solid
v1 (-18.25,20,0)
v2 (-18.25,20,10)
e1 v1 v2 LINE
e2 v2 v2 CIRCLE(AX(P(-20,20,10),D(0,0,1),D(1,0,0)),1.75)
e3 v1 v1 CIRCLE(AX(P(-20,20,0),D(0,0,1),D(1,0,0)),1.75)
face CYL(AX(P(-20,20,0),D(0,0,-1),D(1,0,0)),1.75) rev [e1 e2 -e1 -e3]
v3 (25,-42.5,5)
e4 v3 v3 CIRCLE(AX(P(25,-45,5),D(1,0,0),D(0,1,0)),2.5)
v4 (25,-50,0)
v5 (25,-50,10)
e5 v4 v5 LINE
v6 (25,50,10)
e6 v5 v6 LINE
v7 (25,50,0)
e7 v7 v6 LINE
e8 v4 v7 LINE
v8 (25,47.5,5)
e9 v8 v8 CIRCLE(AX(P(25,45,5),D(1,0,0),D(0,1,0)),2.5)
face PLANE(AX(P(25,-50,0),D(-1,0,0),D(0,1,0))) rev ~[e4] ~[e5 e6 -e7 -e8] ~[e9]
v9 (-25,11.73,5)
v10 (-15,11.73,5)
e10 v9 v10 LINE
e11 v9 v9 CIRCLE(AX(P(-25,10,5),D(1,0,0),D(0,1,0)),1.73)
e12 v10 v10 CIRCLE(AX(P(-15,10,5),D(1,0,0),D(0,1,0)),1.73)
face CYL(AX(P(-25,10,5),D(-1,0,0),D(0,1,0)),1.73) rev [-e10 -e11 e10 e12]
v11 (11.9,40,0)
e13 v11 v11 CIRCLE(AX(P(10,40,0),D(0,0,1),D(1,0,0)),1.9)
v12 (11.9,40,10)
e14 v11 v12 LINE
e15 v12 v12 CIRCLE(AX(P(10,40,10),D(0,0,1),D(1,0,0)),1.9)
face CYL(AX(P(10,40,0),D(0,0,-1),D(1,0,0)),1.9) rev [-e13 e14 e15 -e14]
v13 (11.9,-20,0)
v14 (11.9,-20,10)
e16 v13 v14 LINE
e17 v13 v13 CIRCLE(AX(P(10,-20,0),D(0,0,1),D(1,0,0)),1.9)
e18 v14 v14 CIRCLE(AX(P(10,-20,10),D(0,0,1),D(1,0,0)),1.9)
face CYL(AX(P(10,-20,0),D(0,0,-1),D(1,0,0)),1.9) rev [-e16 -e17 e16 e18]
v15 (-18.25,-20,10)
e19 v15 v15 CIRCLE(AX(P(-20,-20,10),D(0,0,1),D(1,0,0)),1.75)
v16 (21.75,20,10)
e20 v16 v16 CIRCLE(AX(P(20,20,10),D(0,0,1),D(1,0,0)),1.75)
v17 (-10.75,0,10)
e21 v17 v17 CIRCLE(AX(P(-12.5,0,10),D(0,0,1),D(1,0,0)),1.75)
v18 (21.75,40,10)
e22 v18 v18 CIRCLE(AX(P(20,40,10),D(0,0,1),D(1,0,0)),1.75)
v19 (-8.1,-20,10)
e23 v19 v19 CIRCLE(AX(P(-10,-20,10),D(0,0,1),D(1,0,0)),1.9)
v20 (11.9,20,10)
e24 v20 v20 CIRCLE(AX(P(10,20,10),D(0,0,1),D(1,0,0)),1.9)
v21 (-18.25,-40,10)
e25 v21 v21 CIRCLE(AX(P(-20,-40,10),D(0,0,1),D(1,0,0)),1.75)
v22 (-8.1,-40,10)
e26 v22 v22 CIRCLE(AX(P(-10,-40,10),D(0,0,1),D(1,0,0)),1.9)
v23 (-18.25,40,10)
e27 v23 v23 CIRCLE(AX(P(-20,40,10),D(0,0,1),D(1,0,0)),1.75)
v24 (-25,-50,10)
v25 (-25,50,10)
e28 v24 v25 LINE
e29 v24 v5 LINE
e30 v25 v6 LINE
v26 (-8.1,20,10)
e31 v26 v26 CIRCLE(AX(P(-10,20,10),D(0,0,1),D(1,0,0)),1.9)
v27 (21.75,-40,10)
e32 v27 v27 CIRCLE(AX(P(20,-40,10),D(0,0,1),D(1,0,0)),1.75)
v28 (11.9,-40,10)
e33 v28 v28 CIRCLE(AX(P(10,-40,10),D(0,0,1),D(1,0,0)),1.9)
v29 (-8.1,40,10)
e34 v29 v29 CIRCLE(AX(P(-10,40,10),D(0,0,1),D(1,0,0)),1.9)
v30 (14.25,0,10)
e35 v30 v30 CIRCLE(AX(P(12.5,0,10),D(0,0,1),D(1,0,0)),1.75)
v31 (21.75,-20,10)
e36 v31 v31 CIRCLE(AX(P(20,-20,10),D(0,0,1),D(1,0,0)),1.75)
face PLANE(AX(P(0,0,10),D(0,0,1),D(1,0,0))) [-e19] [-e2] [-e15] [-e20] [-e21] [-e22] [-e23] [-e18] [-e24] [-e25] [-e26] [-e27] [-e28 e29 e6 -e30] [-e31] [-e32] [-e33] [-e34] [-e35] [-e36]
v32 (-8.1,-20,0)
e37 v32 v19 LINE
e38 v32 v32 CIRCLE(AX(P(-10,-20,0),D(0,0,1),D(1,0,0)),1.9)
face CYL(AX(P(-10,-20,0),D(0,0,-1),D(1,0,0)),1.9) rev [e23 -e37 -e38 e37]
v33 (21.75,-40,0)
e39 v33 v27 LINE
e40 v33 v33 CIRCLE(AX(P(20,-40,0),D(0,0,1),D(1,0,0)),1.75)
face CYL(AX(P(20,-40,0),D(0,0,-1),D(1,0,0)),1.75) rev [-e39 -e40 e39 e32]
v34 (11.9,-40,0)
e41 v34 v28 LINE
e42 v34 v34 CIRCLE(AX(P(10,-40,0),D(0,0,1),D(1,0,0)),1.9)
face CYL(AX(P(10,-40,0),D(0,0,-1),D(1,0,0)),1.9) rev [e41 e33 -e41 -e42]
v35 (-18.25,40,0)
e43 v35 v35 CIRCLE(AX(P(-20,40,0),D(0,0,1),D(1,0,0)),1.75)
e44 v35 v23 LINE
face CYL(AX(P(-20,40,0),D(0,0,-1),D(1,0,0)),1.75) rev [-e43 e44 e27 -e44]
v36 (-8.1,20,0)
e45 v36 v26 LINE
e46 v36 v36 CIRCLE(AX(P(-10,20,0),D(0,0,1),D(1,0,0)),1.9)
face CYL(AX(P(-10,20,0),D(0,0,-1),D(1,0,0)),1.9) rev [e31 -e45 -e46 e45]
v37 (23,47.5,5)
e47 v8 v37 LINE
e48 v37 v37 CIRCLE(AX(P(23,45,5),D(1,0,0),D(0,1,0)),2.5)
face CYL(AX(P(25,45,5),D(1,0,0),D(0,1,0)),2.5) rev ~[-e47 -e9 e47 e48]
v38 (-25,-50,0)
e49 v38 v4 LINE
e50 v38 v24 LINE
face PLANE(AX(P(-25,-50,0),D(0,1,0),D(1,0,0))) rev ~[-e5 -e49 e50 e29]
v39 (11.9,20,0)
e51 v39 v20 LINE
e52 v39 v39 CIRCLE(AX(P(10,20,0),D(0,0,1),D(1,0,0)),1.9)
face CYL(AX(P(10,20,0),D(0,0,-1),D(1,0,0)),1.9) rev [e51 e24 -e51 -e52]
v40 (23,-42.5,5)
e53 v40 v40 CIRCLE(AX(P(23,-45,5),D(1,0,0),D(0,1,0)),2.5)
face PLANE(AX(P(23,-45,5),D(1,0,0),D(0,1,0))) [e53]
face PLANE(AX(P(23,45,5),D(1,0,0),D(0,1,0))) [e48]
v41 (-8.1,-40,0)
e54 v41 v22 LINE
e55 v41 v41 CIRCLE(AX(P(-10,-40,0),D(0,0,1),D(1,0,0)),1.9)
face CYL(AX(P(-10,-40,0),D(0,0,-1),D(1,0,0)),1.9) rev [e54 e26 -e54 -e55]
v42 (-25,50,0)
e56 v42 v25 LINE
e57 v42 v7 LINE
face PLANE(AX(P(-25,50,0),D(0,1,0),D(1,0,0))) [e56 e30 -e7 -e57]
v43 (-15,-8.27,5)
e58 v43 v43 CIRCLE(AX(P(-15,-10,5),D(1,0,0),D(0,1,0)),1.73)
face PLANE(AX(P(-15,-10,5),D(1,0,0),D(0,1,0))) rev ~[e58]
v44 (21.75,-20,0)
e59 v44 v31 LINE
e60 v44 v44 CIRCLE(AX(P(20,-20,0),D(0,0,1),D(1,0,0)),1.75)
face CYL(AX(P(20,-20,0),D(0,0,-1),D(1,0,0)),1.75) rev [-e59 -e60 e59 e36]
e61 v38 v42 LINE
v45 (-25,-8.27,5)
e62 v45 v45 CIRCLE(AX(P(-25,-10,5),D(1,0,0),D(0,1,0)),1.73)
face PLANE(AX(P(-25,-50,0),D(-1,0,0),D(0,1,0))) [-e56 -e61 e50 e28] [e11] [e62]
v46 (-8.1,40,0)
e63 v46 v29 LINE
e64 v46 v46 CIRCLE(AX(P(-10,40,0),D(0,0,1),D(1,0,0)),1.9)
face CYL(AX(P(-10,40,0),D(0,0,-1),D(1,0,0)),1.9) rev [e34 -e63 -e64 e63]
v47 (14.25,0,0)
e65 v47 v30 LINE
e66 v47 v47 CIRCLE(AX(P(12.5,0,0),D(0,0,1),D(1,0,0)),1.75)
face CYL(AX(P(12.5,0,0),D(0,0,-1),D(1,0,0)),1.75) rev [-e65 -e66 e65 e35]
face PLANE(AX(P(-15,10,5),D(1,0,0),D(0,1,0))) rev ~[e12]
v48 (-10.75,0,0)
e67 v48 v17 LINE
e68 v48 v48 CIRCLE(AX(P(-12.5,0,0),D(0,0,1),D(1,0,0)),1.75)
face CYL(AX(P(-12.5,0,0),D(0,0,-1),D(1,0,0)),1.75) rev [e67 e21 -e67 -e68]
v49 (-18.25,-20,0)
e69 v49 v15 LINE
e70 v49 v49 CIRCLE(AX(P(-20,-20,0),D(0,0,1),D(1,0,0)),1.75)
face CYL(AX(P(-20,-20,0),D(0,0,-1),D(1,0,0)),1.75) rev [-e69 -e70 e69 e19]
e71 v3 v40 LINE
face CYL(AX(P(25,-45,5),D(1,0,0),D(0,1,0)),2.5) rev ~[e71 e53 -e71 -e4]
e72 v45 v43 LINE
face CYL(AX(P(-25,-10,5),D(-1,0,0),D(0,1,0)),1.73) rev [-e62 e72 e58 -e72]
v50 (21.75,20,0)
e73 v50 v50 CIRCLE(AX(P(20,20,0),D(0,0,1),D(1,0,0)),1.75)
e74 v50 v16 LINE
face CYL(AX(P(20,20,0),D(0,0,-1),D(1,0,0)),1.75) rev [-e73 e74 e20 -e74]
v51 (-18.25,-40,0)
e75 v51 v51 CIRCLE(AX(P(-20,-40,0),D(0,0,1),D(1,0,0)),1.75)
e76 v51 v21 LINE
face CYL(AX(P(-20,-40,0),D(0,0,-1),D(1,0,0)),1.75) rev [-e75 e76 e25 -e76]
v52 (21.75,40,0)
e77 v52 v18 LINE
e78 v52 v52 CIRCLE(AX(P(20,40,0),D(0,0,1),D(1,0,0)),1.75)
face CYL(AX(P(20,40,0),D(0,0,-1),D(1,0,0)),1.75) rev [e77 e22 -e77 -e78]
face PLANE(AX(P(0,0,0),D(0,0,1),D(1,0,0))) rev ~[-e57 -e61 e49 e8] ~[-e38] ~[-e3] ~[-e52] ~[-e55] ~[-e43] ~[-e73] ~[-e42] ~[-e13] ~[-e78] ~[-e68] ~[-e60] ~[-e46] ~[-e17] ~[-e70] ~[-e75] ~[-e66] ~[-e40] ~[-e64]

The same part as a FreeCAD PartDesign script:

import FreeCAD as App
import Part
import Sketcher
Q = App.Units.Quantity

doc = App.newDocument("Part")
body = doc.addObject("PartDesign::Body", "Body")

sketch1 = doc.addObject("Sketcher::SketchObject", "Sketch")
body.addObject(sketch1)
sketch1.AttachmentSupport = (doc.XY_Plane, [""])
sketch1.MapMode = "FlatFace"
sketch1.addGeometry(Part.LineSegment(App.Vector(-25, 50, 0), App.Vector(-25, -50, 0)), False)
sketch1.addGeometry(Part.LineSegment(App.Vector(-25, -50, 0), App.Vector(25, -50, 0)), False)
sketch1.addGeometry(Part.LineSegment(App.Vector(25, -50, 0), App.Vector(25, 50, 0)), False)
sketch1.addGeometry(Part.LineSegment(App.Vector(25, 50, 0), App.Vector(-25, 50, 0)), False)
sketch1.addGeometry(Part.Circle(App.Vector(-20, -40, 0), App.Vector(0, 0, 1), 1.8), False)
sketch1.addGeometry(Part.Circle(App.Vector(-10, -40, 0), App.Vector(0, 0, 1), 1.9), False)
sketch1.addGeometry(Part.Circle(App.Vector(-20, -20, 0), App.Vector(0, 0, 1), 1.8), False)
sketch1.addGeometry(Part.Circle(App.Vector(-12.5, 0, 0), App.Vector(0, 0, 1), 1.8), False)
sketch1.addGeometry(Part.Circle(App.Vector(-10, -20, 0), App.Vector(0, 0, 1), 1.9), False)
sketch1.addGeometry(Part.Circle(App.Vector(10, -40, 0), App.Vector(0, 0, 1), 1.9), False)
sketch1.addGeometry(Part.Circle(App.Vector(20, -40, 0), App.Vector(0, 0, 1), 1.8), False)
sketch1.addGeometry(Part.Circle(App.Vector(10, -20, 0), App.Vector(0, 0, 1), 1.9), False)
sketch1.addGeometry(Part.Circle(App.Vector(20, -20, 0), App.Vector(0, 0, 1), 1.8), False)
sketch1.addGeometry(Part.Circle(App.Vector(12.5, 0, 0), App.Vector(0, 0, 1), 1.8), False)
sketch1.addGeometry(Part.Circle(App.Vector(-20, 20, 0), App.Vector(0, 0, 1), 1.8), False)
sketch1.addGeometry(Part.Circle(App.Vector(-10, 20, 0), App.Vector(0, 0, 1), 1.9), False)
sketch1.addGeometry(Part.Circle(App.Vector(-20, 40, 0), App.Vector(0, 0, 1), 1.8), False)
sketch1.addGeometry(Part.Circle(App.Vector(-10, 40, 0), App.Vector(0, 0, 1), 1.9), False)
sketch1.addGeometry(Part.Circle(App.Vector(10, 20, 0), App.Vector(0, 0, 1), 1.9), False)
sketch1.addGeometry(Part.Circle(App.Vector(20, 20, 0), App.Vector(0, 0, 1), 1.8), False)
sketch1.addGeometry(Part.Circle(App.Vector(10, 40, 0), App.Vector(0, 0, 1), 1.9), False)
sketch1.addGeometry(Part.Circle(App.Vector(20, 40, 0), App.Vector(0, 0, 1), 1.8), False)
sketch1.addConstraint(Sketcher.Constraint("Coincident", 0, 2, 1, 1))
sketch1.addConstraint(Sketcher.Constraint("Coincident", 1, 2, 2, 1))
sketch1.addConstraint(Sketcher.Constraint("Coincident", 2, 2, 3, 1))
sketch1.addConstraint(Sketcher.Constraint("Coincident", 3, 2, 0, 1))
sketch1.addConstraint(Sketcher.Constraint("Vertical", 0))
sketch1.addConstraint(Sketcher.Constraint("Horizontal", 1))
sketch1.addConstraint(Sketcher.Constraint("Vertical", 2))
sketch1.addConstraint(Sketcher.Constraint("Horizontal", 3))
sketch1.addConstraint(Sketcher.Constraint("Equal", 4, 6))
sketch1.addConstraint(Sketcher.Constraint("Equal", 6, 7))
sketch1.addConstraint(Sketcher.Constraint("Equal", 5, 8))
sketch1.addConstraint(Sketcher.Constraint("Equal", 8, 9))
sketch1.addConstraint(Sketcher.Constraint("Equal", 7, 10))
sketch1.addConstraint(Sketcher.Constraint("Equal", 9, 11))
sketch1.addConstraint(Sketcher.Constraint("Equal", 10, 12))
sketch1.addConstraint(Sketcher.Constraint("Equal", 12, 13))
sketch1.addConstraint(Sketcher.Constraint("Equal", 13, 14))
sketch1.addConstraint(Sketcher.Constraint("Equal", 11, 15))
sketch1.addConstraint(Sketcher.Constraint("Equal", 14, 16))
sketch1.addConstraint(Sketcher.Constraint("Equal", 15, 17))
sketch1.addConstraint(Sketcher.Constraint("Equal", 17, 18))
sketch1.addConstraint(Sketcher.Constraint("Equal", 16, 19))
sketch1.addConstraint(Sketcher.Constraint("Equal", 18, 20))
sketch1.addConstraint(Sketcher.Constraint("Equal", 19, 21))
sketch1.addConstraint(Sketcher.Constraint("Symmetric", 7, 3, 13, 3, -1, 1))
sketch1.addConstraint(Sketcher.Constraint("Symmetric", 12, 3, 14, 3, -1, 1))
sketch1.addConstraint(Sketcher.Constraint("Symmetric", 11, 3, 15, 3, -1, 1))
sketch1.addConstraint(Sketcher.Constraint("Symmetric", 10, 3, 16, 3, -1, 1))
sketch1.addConstraint(Sketcher.Constraint("Symmetric", 9, 3, 17, 3, -1, 1))
sketch1.addConstraint(Sketcher.Constraint("Symmetric", 8, 3, 18, 3, -1, 1))
sketch1.addConstraint(Sketcher.Constraint("Symmetric", 6, 3, 19, 3, -1, 1))
sketch1.addConstraint(Sketcher.Constraint("Symmetric", 5, 3, 20, 3, -1, 1))
sketch1.addConstraint(Sketcher.Constraint("Symmetric", 4, 3, 21, 3, -1, 1))
sketch1.addConstraint(Sketcher.Constraint("Symmetric", 0, 2, 2, 2, -1, 1))
sketch1.addConstraint(Sketcher.Constraint("Symmetric", 5, 3, 9, 3, -2))
sketch1.addConstraint(Sketcher.Constraint("Symmetric", 4, 3, 10, 3, -2))
sketch1.addConstraint(Sketcher.Constraint("Symmetric", 8, 3, 11, 3, -2))
sketch1.addConstraint(Sketcher.Constraint("Symmetric", 6, 3, 12, 3, -2))
sketch1.addConstraint(Sketcher.Constraint("PointOnObject", 7, 3, -1))
sketch1.addConstraint(Sketcher.Constraint("Horizontal", 4, 3, 5, 3))
sketch1.addConstraint(Sketcher.Constraint("Horizontal", 6, 3, 8, 3))
sketch1.addConstraint(Sketcher.Constraint("Vertical", 4, 3, 6, 3))
sketch1.addConstraint(Sketcher.Constraint("Vertical", 5, 3, 8, 3))
sketch1.addConstraint(Sketcher.Constraint("Diameter", 4, Q("3.5 mm")))
sketch1.addConstraint(Sketcher.Constraint("Diameter", 5, Q("3.8 mm")))
sketch1.addConstraint(Sketcher.Constraint("DistanceX", 1, 1, 1, 2, Q("50 mm")))
sketch1.addConstraint(Sketcher.Constraint("DistanceY", 0, 2, 0, 1, Q("100 mm")))
sketch1.addConstraint(Sketcher.Constraint("DistanceX", 4, 3, -1, 1, Q("20 mm")))
sketch1.addConstraint(Sketcher.Constraint("DistanceY", 4, 3, -1, 1, Q("40 mm")))
sketch1.addConstraint(Sketcher.Constraint("DistanceX", 5, 3, -1, 1, Q("10 mm")))
sketch1.addConstraint(Sketcher.Constraint("DistanceY", 6, 3, -1, 1, Q("20 mm")))
sketch1.addConstraint(Sketcher.Constraint("DistanceX", 7, 3, 13, 3, Q("25 mm")))
pad1 = doc.addObject("PartDesign::Pad", "Pad")
body.addObject(pad1)
pad1.Profile = sketch1
pad1.Length = 10

sketch2 = doc.addObject("Sketcher::SketchObject", "Sketch001")
body.addObject(sketch2)
sketch2.AttachmentSupport = (doc.YZ_Plane, [""])
sketch2.MapMode = "FlatFace"
sketch2.AttachmentOffset = App.Placement(App.Vector(0, 0, 25), App.Rotation())
sketch2.addGeometry(Part.Circle(App.Vector(-45, 5, 0), App.Vector(0, 0, 1), 2.5), False)
sketch2.addGeometry(Part.Circle(App.Vector(45, 5, 0), App.Vector(0, 0, 1), 2.5), False)
sketch2.addConstraint(Sketcher.Constraint("Equal", 0, 1))
sketch2.addConstraint(Sketcher.Constraint("Symmetric", 0, 3, 1, 3, -2))
sketch2.addConstraint(Sketcher.Constraint("Diameter", 0, Q("5 mm")))
sketch2.addConstraint(Sketcher.Constraint("DistanceX", 0, 3, -1, 1, Q("45 mm")))
sketch2.addConstraint(Sketcher.Constraint("DistanceY", -1, 1, 0, 3, Q("5 mm")))
pocket1 = doc.addObject("PartDesign::Pocket", "Pocket")
body.addObject(pocket1)
pocket1.Profile = sketch2
pocket1.Length = 2

sketch3 = doc.addObject("Sketcher::SketchObject", "Sketch002")
body.addObject(sketch3)
sketch3.AttachmentSupport = (doc.YZ_Plane, [""])
sketch3.MapMode = "FlatFace"
sketch3.AttachmentOffset = App.Placement(App.Vector(0, 0, -25), App.Rotation())
sketch3.addGeometry(Part.Circle(App.Vector(-10, 5, 0), App.Vector(0, 0, 1), 1.7), False)
sketch3.addGeometry(Part.Circle(App.Vector(10, 5, 0), App.Vector(0, 0, 1), 1.7), False)
sketch3.addConstraint(Sketcher.Constraint("Equal", 0, 1))
sketch3.addConstraint(Sketcher.Constraint("Symmetric", 0, 3, 1, 3, -2))
sketch3.addConstraint(Sketcher.Constraint("Diameter", 0, Q("3.46 mm")))
sketch3.addConstraint(Sketcher.Constraint("DistanceX", 0, 3, -1, 1, Q("10 mm")))
sketch3.addConstraint(Sketcher.Constraint("DistanceY", -1, 1, 0, 3, Q("5 mm")))
pocket2 = doc.addObject("PartDesign::Pocket", "Pocket001")
body.addObject(pocket2)
pocket2.Profile = sketch3
pocket2.Length = 10
pocket2.Reversed = True

doc.recompute()
